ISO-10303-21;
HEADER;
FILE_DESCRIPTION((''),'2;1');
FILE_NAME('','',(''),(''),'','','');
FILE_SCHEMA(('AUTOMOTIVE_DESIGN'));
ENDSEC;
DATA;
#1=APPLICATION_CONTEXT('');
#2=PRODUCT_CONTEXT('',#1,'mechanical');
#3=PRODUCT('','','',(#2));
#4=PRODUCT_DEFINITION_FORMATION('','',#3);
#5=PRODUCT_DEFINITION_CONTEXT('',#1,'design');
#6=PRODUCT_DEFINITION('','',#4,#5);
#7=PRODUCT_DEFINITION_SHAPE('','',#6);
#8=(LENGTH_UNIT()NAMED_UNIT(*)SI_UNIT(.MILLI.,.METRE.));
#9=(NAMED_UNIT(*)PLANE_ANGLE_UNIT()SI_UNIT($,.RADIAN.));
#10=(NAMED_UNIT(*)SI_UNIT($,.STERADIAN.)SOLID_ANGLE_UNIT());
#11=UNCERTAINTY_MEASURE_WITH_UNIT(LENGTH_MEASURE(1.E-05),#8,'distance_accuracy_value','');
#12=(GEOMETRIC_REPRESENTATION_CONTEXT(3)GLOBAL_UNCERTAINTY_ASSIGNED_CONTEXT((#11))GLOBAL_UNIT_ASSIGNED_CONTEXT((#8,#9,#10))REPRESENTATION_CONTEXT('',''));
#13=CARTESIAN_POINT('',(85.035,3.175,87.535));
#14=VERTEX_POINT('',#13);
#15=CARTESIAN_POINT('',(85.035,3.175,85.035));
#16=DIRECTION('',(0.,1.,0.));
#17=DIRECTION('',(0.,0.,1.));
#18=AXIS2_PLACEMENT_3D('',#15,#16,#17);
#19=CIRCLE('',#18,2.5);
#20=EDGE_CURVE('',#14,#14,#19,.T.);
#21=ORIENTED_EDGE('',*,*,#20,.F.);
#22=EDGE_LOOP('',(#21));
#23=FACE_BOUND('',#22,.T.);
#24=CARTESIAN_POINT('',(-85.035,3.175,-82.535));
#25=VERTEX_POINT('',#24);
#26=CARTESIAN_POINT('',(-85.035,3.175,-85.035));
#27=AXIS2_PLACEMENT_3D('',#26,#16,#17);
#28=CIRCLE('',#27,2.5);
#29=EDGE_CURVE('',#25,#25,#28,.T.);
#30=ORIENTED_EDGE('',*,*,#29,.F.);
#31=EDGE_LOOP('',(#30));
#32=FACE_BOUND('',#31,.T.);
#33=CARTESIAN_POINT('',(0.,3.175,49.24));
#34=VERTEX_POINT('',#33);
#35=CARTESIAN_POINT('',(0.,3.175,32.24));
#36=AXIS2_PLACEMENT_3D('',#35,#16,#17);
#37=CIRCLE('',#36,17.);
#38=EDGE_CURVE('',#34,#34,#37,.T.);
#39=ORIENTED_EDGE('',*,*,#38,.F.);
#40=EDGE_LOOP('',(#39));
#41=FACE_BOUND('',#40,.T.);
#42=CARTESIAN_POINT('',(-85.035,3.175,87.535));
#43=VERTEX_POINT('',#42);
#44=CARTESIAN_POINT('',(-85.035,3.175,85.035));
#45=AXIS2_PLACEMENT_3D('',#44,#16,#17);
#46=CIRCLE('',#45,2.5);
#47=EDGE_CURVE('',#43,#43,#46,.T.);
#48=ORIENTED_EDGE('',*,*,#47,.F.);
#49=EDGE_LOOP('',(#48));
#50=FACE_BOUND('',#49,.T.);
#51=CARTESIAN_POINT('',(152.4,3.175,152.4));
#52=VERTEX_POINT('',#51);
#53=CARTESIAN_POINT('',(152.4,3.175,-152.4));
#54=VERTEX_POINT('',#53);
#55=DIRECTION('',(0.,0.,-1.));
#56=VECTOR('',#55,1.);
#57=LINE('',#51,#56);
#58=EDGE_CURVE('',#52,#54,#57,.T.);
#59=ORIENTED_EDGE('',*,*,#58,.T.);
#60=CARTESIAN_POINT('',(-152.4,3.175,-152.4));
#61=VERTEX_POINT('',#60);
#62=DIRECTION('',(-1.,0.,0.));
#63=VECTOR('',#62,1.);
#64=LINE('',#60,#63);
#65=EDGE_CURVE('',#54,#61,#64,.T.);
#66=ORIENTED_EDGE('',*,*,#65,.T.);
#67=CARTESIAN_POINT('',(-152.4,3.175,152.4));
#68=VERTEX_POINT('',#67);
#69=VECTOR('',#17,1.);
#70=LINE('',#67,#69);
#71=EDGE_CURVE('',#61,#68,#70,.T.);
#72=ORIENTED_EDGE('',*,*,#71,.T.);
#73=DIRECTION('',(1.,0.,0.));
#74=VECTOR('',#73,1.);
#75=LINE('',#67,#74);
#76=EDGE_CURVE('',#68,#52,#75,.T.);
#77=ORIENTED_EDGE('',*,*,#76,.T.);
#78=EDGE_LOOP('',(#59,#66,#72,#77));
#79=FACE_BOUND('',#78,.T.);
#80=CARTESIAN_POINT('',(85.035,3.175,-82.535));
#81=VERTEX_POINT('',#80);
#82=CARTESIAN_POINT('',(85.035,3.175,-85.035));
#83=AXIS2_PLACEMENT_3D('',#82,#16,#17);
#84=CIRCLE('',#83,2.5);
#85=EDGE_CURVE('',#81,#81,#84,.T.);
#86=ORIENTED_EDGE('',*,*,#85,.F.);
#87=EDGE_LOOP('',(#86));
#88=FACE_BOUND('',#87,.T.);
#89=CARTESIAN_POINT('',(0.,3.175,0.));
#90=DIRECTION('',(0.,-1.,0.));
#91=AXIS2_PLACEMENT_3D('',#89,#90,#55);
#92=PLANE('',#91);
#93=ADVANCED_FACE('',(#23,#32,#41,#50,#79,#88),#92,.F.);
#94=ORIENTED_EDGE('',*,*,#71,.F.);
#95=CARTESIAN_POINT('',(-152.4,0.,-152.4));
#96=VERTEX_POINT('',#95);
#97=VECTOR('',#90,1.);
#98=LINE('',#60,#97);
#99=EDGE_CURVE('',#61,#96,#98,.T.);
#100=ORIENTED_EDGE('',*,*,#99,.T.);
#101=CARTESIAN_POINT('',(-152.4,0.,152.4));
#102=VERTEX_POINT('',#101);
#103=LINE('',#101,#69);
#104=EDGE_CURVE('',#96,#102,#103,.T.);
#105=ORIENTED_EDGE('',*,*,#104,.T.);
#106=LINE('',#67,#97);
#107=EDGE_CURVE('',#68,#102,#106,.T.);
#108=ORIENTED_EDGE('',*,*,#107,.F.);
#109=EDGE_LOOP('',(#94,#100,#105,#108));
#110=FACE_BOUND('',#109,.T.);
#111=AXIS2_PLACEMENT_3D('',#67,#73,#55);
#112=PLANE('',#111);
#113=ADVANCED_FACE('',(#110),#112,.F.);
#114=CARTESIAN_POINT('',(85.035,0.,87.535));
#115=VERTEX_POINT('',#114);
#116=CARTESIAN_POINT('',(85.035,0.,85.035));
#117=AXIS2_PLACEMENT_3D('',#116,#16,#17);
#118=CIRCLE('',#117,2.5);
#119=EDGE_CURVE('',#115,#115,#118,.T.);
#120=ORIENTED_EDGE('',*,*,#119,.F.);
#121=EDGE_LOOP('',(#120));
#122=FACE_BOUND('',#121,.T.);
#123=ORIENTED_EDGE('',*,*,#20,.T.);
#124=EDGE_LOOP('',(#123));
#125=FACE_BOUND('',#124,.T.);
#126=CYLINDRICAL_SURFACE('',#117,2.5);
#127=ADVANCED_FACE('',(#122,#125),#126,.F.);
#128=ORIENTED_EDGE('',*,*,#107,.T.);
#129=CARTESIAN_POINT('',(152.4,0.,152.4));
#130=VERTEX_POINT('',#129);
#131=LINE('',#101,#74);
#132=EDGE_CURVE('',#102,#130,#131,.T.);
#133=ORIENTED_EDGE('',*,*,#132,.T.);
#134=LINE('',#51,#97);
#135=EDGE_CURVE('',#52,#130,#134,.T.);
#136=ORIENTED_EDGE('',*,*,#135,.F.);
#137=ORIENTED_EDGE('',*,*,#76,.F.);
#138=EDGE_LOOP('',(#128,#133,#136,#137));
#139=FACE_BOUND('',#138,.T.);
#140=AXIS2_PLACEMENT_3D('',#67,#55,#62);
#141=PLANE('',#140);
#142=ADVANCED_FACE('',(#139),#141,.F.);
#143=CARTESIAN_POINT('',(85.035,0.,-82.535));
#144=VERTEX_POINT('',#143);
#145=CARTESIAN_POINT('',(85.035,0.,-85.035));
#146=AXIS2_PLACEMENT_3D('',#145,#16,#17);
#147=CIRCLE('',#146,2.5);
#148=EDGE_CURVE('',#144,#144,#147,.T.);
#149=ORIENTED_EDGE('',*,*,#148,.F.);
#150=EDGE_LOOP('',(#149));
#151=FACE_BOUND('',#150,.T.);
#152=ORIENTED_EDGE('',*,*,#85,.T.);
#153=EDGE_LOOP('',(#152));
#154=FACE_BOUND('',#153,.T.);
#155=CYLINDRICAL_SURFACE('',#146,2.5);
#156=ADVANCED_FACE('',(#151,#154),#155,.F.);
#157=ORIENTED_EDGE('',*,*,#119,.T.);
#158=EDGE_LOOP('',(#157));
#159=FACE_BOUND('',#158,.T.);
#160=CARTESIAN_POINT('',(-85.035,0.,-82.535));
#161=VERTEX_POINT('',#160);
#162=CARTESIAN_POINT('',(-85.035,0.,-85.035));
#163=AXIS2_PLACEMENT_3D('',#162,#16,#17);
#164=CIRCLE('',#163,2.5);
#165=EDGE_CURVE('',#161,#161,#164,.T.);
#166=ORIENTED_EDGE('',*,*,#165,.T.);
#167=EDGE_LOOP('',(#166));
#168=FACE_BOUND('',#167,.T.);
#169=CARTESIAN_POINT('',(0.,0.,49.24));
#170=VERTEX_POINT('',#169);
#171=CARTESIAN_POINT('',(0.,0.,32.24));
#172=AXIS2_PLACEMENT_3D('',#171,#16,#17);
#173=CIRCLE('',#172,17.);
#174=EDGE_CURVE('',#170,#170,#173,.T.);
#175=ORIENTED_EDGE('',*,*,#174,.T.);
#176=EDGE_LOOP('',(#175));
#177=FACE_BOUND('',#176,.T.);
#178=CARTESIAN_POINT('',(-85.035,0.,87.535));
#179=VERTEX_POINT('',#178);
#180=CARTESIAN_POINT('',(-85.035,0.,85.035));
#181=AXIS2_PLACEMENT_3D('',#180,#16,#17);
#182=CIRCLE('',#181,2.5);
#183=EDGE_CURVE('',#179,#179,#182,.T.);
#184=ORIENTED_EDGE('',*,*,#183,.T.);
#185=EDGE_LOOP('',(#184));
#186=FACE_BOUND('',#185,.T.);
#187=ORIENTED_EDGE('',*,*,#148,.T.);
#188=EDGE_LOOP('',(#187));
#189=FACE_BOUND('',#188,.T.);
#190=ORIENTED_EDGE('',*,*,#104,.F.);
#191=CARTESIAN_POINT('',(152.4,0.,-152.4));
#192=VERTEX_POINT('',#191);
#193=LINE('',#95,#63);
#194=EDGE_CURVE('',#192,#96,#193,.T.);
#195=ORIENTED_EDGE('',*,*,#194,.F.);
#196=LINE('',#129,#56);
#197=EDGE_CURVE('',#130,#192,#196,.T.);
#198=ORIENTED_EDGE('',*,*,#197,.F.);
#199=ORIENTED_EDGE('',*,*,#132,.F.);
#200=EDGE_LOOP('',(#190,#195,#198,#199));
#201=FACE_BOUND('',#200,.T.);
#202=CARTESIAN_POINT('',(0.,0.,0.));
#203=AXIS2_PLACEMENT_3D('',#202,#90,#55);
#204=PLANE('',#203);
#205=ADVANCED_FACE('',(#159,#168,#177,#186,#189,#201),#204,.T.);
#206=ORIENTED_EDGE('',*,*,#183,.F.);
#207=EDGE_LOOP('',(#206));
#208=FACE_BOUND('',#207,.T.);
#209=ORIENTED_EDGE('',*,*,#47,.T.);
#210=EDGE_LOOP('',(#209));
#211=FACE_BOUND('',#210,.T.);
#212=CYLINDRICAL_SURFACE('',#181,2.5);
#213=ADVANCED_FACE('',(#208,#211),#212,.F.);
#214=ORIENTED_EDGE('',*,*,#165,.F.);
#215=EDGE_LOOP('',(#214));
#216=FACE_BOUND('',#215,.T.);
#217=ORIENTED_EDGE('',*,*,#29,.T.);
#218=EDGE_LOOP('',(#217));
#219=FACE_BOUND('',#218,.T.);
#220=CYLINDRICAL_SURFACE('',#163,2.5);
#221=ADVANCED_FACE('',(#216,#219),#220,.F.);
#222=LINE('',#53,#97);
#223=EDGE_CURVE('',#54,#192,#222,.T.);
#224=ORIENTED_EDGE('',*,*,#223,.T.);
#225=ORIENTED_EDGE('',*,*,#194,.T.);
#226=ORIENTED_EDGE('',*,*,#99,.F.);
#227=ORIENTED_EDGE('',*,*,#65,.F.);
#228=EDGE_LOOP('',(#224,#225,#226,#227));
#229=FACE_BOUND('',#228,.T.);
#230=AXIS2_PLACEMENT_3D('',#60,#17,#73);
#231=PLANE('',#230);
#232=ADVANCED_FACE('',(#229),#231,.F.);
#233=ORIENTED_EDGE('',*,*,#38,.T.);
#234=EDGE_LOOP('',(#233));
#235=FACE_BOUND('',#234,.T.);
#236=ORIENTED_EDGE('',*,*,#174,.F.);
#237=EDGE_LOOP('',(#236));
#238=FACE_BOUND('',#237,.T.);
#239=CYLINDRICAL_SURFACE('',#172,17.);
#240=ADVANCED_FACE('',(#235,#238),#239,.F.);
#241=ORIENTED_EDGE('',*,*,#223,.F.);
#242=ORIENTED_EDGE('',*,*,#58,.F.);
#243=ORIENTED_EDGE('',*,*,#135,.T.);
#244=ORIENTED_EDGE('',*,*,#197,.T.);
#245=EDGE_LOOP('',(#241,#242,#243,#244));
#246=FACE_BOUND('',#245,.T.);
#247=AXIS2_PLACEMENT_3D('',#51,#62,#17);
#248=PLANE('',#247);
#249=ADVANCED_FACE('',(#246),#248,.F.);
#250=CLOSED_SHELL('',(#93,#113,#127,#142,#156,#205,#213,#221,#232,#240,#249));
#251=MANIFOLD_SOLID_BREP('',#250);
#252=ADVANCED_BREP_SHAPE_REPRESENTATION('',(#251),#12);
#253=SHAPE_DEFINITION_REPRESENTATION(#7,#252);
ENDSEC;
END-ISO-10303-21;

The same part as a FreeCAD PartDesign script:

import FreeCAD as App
import Part
import Sketcher

V = App.Vector
Q = App.Units.Quantity

doc = App.newDocument("Part")
body = doc.addObject("PartDesign::Body", "Body")

# Sketch on XZ plane
sketch1 = body.newObject("Sketcher::SketchObject", "Sketch")
sketch1.AttachmentSupport = (doc.getObject("XZ_Plane"), [""])
sketch1.MapMode = "FlatFace"
sketch1.addGeometry(Part.LineSegment(V(-152, -152, 0), V(-152, 152, 0)), False)
sketch1.addGeometry(Part.LineSegment(V(-152, 152, 0), V(152, 152, 0)), False)
sketch1.addGeometry(Part.LineSegment(V(152, 152, 0), V(152, -152, 0)), False)
sketch1.addGeometry(Part.LineSegment(V(152, -152, 0), V(-152, -152, 0)), False)
sketch1.addConstraint(Sketcher.Constraint("Coincident", 0, 2, 1, 1))
sketch1.addConstraint(Sketcher.Constraint("Coincident", 1, 2, 2, 1))
sketch1.addConstraint(Sketcher.Constraint("Coincident", 2, 2, 3, 1))
sketch1.addConstraint(Sketcher.Constraint("Coincident", 3, 2, 0, 1))
sketch1.addConstraint(Sketcher.Constraint("Vertical", 0))
sketch1.addConstraint(Sketcher.Constraint("Horizontal", 1))
sketch1.addConstraint(Sketcher.Constraint("Vertical", 2))
sketch1.addConstraint(Sketcher.Constraint("Horizontal", 3))
sketch1.addConstraint(Sketcher.Constraint("Symmetric", 0, 2, 2, 2, -1, 1))
sketch1.addConstraint(Sketcher.Constraint("Equal", 3, 0))
sketch1.addConstraint(Sketcher.Constraint("DistanceX", 1, 1, 1, 2, Q("304.8 mm")))
pad1 = body.newObject("PartDesign::Pad", "Pad")
pad1.Profile = sketch1
pad1.Length = 3.175
pad1.Reversed = True

# Sketch on XZ plane
sketch2 = body.newObject("Sketcher::SketchObject", "Sketch001")
sketch2.AttachmentSupport = (doc.getObject("XZ_Plane"), [""])
sketch2.MapMode = "FlatFace"
sketch2.AttachmentOffset = App.Placement(V(0, 0, -3.175), App.Rotation())
sketch2.addGeometry(Part.Circle(V(-85, -85, 0), V(0, 0, 1), 2.5), False)
sketch2.addGeometry(Part.Circle(V(85, -85, 0), V(0, 0, 1), 2.5), False)
sketch2.addGeometry(Part.Circle(V(-85, 85, 0), V(0, 0, 1), 2.5), False)
sketch2.addGeometry(Part.Circle(V(85, 85, 0), V(0, 0, 1), 2.5), False)
sketch2.addConstraint(Sketcher.Constraint("Equal", 0, 1))
sketch2.addConstraint(Sketcher.Constraint("Equal", 1, 2))
sketch2.addConstraint(Sketcher.Constraint("Equal", 2, 3))
sketch2.addConstraint(Sketcher.Constraint("Symmetric", 1, 3, 2, 3, -1, 1))
sketch2.addConstraint(Sketcher.Constraint("Symmetric", 0, 3, 3, 3, -1, 1))
sketch2.addConstraint(Sketcher.Constraint("Symmetric", 0, 3, 1, 3, -2))
sketch2.addConstraint(Sketcher.Constraint("Diameter", 0, Q("5 mm")))
sketch2.addConstraint(Sketcher.Constraint("DistanceX", 0, 3, 1, 3, Q("170.07 mm")))
sketch2.addConstraint(Sketcher.Constraint("DistanceY", 0, 3, 2, 3, Q("170.07 mm")))
pocket1 = body.newObject("PartDesign::Pocket", "Pocket")
pocket1.Profile = sketch2
pocket1.Type = "ThroughAll"
pocket1.Reversed = True

# Sketch on XZ plane
sketch3 = body.newObject("Sketcher::SketchObject", "Sketch002")
sketch3.AttachmentSupport = (doc.getObject("XZ_Plane"), [""])
sketch3.MapMode = "FlatFace"
sketch3.AttachmentOffset = App.Placement(V(0, 0, -3.175), App.Rotation())
sketch3.addGeometry(Part.Circle(V(0, 32, 0), V(0, 0, 1), 17), False)
sketch3.addConstraint(Sketcher.Constraint("PointOnObject", 0, 3, -2))
sketch3.addConstraint(Sketcher.Constraint("Diameter", 0, Q("34 mm")))
sketch3.addConstraint(Sketcher.Constraint("DistanceY", -1, 1, 0, 3, Q("32.24 mm")))
pocket2 = body.newObject("PartDesign::Pocket", "Pocket001")
pocket2.Profile = sketch3
pocket2.Type = "ThroughAll"
pocket2.Reversed = True

doc.recompute()
